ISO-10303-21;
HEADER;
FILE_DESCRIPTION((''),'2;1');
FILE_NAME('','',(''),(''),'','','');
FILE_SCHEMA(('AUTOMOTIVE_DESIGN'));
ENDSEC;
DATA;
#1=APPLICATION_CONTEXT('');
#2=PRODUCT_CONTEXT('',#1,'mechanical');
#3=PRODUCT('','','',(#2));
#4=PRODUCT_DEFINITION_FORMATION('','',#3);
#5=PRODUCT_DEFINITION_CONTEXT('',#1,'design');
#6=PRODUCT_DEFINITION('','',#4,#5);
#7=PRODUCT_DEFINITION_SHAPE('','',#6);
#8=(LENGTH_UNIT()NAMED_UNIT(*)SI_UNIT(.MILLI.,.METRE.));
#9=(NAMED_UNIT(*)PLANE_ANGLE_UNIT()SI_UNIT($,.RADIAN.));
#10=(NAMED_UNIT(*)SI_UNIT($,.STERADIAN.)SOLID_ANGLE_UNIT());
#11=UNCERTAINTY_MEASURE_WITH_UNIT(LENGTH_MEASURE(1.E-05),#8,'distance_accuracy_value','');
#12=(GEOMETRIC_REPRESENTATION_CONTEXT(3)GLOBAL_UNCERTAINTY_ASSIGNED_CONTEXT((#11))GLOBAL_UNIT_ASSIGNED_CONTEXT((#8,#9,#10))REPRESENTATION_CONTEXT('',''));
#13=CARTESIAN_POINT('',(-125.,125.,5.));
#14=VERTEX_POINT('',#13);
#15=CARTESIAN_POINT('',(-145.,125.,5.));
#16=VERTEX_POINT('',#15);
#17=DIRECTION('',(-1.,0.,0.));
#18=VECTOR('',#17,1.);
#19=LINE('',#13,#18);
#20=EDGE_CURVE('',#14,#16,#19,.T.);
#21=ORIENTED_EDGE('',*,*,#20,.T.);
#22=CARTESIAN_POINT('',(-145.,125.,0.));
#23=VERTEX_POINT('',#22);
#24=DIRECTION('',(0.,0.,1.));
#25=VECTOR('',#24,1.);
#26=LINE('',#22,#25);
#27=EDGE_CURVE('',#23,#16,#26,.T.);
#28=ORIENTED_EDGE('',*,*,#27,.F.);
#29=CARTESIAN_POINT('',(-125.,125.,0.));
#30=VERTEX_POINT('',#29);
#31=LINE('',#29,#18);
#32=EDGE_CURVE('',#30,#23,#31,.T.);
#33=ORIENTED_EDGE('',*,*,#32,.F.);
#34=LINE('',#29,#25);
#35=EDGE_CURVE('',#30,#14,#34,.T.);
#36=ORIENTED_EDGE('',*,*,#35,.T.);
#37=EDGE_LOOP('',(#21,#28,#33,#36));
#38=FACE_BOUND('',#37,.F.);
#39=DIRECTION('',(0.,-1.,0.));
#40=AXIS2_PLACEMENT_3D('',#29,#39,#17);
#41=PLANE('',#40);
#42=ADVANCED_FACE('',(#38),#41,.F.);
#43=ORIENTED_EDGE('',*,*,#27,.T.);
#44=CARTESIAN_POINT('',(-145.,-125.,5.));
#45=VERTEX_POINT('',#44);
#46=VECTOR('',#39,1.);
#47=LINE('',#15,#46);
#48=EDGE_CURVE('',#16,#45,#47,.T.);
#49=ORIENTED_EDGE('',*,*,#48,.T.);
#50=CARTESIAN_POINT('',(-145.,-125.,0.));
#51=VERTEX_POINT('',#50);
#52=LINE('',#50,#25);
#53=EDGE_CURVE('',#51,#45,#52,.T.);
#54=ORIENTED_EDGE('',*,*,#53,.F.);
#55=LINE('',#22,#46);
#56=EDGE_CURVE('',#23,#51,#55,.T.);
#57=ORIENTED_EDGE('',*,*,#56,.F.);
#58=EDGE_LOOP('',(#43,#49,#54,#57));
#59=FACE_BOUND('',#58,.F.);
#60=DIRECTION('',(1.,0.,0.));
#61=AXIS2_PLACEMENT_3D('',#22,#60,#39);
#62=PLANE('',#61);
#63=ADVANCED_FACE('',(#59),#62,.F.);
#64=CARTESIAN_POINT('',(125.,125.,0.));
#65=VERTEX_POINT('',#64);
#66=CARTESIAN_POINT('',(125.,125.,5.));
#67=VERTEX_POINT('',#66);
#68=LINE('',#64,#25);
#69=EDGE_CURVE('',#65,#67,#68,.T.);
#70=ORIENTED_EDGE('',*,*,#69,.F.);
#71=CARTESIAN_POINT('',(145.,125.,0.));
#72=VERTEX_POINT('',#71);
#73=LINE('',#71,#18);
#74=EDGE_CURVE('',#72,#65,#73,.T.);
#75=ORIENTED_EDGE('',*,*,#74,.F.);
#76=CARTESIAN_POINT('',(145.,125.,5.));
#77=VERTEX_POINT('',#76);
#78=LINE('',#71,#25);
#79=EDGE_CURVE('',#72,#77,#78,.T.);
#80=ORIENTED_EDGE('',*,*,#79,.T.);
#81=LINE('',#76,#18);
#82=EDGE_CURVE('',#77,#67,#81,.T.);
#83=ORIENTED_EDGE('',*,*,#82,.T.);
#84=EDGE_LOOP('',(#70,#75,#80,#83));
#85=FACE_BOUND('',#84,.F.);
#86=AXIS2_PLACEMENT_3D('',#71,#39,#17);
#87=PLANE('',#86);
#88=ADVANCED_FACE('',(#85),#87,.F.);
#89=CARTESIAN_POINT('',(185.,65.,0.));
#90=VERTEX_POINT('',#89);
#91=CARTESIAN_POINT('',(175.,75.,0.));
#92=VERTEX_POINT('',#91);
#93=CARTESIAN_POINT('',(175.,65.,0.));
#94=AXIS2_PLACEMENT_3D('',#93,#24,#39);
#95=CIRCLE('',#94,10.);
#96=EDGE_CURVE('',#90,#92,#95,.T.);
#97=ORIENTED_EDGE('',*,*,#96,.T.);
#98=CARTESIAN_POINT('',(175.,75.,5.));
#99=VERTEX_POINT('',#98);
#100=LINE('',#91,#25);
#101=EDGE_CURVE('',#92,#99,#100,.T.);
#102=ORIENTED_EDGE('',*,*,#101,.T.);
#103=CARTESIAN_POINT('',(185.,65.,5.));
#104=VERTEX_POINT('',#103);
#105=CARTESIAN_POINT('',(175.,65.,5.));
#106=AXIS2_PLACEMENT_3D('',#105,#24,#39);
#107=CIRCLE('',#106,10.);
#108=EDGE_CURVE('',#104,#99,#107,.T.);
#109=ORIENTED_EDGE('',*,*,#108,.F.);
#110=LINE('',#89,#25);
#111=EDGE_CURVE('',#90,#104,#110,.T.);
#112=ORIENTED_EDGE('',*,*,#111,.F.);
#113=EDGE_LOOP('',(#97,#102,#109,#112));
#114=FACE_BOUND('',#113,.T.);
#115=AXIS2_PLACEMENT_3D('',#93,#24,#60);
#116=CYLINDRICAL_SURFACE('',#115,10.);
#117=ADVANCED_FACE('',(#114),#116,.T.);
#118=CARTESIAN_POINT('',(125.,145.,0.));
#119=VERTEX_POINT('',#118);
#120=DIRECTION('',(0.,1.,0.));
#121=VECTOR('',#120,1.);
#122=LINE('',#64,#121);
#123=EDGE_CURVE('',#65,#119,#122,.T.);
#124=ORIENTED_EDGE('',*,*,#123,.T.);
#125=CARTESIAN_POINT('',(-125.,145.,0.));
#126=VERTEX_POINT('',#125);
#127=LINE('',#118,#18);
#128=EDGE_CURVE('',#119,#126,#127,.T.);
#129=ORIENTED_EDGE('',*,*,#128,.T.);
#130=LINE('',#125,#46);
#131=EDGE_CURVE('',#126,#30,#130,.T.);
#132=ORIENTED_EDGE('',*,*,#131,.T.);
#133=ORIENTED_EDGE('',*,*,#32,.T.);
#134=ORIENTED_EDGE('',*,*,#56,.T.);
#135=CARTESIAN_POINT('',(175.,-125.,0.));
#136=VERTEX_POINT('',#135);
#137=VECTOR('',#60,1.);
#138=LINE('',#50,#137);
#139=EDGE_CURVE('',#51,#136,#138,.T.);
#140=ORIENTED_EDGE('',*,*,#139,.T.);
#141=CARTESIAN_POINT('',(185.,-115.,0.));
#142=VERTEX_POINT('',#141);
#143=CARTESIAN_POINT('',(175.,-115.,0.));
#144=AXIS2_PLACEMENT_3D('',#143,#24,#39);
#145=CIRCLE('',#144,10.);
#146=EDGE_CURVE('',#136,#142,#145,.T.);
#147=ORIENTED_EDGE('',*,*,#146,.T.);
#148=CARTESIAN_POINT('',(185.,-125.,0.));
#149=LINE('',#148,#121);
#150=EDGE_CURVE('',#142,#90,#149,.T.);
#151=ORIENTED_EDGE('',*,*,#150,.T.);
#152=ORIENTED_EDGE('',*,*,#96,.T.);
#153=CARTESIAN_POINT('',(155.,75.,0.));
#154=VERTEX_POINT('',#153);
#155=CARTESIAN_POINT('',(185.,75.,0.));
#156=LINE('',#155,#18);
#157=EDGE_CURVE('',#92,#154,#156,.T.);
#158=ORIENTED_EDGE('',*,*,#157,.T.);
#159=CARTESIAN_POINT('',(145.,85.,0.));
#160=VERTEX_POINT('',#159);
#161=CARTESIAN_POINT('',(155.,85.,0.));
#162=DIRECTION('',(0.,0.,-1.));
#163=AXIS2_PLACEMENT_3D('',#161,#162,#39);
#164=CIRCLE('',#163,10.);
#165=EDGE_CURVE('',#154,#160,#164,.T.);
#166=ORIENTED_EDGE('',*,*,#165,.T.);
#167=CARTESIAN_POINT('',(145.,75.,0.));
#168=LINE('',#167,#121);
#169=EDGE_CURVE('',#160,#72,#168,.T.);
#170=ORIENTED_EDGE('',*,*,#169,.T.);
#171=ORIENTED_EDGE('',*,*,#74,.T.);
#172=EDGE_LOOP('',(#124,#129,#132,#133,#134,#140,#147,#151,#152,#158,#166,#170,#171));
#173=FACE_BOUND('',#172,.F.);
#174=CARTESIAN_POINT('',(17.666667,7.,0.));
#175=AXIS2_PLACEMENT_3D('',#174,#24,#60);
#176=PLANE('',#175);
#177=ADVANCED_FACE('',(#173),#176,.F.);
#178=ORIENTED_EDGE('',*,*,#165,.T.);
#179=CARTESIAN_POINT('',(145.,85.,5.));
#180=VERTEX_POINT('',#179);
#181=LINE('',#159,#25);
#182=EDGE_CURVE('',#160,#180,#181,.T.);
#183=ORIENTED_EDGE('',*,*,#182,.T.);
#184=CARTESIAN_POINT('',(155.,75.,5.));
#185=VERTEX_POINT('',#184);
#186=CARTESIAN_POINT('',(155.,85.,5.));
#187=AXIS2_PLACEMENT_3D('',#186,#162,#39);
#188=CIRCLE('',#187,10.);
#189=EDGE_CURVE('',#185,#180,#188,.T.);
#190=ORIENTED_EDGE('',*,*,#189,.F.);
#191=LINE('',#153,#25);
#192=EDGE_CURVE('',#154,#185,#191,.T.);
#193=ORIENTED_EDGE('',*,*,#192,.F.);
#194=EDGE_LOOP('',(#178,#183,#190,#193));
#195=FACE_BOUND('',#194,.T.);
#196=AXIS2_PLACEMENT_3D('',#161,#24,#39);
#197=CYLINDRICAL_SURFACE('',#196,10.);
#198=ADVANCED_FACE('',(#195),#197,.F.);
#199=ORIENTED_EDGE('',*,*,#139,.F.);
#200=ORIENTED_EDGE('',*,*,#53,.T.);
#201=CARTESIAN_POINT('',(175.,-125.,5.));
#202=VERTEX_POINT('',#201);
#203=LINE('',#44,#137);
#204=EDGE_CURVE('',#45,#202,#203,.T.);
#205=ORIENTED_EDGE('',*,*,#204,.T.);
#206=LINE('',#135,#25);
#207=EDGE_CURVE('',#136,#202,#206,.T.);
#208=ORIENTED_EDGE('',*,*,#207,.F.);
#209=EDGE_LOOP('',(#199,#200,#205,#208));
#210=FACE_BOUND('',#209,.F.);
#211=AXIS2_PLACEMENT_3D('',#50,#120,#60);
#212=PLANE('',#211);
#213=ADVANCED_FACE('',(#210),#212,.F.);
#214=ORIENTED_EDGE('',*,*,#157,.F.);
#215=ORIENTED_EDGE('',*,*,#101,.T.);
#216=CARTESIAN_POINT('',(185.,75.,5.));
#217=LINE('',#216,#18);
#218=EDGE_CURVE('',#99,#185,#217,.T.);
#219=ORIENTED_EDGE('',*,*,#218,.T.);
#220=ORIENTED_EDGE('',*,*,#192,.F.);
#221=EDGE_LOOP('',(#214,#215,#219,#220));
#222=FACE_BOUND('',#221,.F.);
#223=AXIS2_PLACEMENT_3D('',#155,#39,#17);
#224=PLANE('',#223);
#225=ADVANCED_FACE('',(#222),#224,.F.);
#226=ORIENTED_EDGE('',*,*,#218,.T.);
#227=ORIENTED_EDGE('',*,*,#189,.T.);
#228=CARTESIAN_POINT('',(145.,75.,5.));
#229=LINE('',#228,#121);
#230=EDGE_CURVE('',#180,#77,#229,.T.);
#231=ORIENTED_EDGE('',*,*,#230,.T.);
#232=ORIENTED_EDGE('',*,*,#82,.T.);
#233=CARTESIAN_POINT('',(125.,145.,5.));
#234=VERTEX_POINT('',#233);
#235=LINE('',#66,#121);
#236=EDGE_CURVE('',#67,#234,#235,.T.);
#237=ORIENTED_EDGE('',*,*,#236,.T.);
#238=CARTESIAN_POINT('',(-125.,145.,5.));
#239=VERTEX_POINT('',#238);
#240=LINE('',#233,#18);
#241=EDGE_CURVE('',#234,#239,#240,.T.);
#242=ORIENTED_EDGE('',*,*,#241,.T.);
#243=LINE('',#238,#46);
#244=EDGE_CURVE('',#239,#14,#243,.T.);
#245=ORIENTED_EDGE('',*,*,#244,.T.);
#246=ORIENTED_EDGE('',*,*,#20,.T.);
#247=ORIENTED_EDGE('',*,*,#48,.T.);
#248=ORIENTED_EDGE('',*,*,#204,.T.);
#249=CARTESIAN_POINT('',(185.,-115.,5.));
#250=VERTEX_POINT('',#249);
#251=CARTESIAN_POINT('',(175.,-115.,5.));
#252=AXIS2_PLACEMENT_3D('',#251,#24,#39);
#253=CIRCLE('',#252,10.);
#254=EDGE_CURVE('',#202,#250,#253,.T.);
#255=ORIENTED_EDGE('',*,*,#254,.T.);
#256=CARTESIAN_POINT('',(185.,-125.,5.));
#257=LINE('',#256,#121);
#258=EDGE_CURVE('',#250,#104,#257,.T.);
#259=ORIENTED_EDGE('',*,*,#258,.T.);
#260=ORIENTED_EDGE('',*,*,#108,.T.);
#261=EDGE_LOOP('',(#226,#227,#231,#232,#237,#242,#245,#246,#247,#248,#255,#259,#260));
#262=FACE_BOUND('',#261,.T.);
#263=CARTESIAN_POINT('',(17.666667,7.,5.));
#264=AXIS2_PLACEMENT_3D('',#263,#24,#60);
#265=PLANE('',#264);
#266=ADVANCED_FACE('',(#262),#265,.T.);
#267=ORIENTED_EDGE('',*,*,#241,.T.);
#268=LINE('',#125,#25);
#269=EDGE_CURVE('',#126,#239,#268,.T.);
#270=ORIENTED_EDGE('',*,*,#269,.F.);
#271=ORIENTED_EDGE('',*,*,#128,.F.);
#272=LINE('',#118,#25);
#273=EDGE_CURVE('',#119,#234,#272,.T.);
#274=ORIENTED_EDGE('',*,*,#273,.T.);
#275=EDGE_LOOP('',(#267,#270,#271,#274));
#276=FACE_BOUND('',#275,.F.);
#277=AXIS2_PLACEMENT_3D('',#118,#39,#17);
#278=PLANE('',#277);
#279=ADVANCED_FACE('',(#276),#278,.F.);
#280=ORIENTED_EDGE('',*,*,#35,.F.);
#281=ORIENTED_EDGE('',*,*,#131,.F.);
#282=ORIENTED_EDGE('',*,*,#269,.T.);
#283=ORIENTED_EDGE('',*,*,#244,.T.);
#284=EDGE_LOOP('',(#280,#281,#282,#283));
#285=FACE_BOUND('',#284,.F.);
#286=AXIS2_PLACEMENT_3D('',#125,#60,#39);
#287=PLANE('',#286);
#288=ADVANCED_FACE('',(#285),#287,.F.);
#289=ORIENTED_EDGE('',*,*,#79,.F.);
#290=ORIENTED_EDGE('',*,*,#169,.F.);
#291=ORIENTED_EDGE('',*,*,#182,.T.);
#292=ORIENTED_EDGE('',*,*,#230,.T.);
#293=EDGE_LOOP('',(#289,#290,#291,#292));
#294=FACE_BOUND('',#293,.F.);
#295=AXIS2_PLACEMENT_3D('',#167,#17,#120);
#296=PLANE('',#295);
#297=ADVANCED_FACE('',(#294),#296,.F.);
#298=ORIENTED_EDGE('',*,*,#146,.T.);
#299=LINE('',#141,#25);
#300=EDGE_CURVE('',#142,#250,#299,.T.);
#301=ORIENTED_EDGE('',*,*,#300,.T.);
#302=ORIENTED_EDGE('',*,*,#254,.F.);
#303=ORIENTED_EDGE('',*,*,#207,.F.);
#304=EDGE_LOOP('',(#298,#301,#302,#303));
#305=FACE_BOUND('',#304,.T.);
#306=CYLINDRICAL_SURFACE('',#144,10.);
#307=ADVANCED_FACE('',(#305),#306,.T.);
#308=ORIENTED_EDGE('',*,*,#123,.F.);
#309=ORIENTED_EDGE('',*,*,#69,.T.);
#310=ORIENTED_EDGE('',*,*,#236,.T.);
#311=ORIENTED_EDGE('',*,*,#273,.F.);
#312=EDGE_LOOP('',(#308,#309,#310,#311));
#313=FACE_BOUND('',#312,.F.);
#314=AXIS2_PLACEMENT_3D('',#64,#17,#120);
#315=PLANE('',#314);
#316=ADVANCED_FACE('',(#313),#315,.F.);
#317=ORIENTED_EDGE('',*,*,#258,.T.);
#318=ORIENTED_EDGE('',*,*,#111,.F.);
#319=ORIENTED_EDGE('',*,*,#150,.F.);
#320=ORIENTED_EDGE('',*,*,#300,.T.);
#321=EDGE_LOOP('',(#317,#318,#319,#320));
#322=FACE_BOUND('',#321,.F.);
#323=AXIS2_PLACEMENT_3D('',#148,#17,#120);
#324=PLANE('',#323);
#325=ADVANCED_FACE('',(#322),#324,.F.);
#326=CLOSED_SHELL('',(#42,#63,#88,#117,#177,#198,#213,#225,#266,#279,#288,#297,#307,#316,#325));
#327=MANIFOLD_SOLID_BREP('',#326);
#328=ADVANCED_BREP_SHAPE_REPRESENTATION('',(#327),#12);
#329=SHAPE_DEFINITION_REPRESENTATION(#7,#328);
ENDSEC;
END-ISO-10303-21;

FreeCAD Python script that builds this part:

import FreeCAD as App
import Part
import Sketcher
from FreeCAD import Vector
Q = App.Units.Quantity


def edges_at(feature, points):
    """Names of the edges that pass closest to the given points."""
    edges = feature.Shape.Edges
    near = lambda p: min(range(len(edges)), key=lambda i: edges[i].distToShape(Part.Vertex(*p))[0])
    return sorted({f"Edge{near(p) + 1}" for p in points})

doc = App.newDocument("Part")
body = doc.addObject("PartDesign::Body", "Body")

# Sketch on XY plane
sketch1 = body.newObject("Sketcher::SketchObject", "Sketch")
sketch1.AttachmentSupport = (doc.getObject("XY_Plane"), [""])
sketch1.MapMode = "FlatFace"
sketch1.addGeometry([
    Part.LineSegment(Vector(-145, -125, 0), Vector(185, -125, 0)),  # 0
    Part.LineSegment(Vector(185, -125, 0), Vector(185, 75, 0)),  # 1
    Part.LineSegment(Vector(185, 75, 0), Vector(145, 75, 0)),  # 2
    Part.LineSegment(Vector(145, 75, 0), Vector(145, 125, 0)),  # 3
    Part.LineSegment(Vector(145, 125, 0), Vector(125, 125, 0)),  # 4
    Part.LineSegment(Vector(125, 125, 0), Vector(125, 145, 0)),  # 5
    Part.LineSegment(Vector(125, 145, 0), Vector(-125, 145, 0)),  # 6
    Part.LineSegment(Vector(-125, 145, 0), Vector(-125, 125, 0)),  # 7
    Part.LineSegment(Vector(-125, 125, 0), Vector(-145, 125, 0)),  # 8
    Part.LineSegment(Vector(-145, 125, 0), Vector(-145, -125, 0)),  # 9
], False)
sketch1.addConstraint([
    Sketcher.Constraint("Coincident", 0, 2, 1, 1),
    Sketcher.Constraint("Coincident", 1, 2, 2, 1),
    Sketcher.Constraint("Coincident", 2, 2, 3, 1),
    Sketcher.Constraint("Coincident", 3, 2, 4, 1),
    Sketcher.Constraint("Coincident", 4, 2, 5, 1),
    Sketcher.Constraint("Coincident", 5, 2, 6, 1),
    Sketcher.Constraint("Coincident", 6, 2, 7, 1),
    Sketcher.Constraint("Coincident", 7, 2, 8, 1),
    Sketcher.Constraint("Coincident", 8, 2, 9, 1),
    Sketcher.Constraint("Coincident", 9, 2, 0, 1),
    Sketcher.Constraint("Horizontal", 0),
    Sketcher.Constraint("Vertical", 1),
    Sketcher.Constraint("Horizontal", 2),
    Sketcher.Constraint("Vertical", 3),
    Sketcher.Constraint("Horizontal", 4),
    Sketcher.Constraint("Vertical", 5),
    Sketcher.Constraint("Horizontal", 6),
    Sketcher.Constraint("Vertical", 7),
    Sketcher.Constraint("Horizontal", 8),
    Sketcher.Constraint("Vertical", 9),
    Sketcher.Constraint("Symmetric", 3, 2, 9, 2, -1, 1),
    Sketcher.Constraint("Symmetric", 4, 2, 7, 2, -2),
    Sketcher.Constraint("Equal", 8, 5),
    Sketcher.Constraint("Equal", 6, 9),
    Sketcher.Constraint("DistanceX", 0, 1, 0, 2, Q("330 mm")),
    Sketcher.Constraint("DistanceX", 2, 2, 2, 1, Q("40 mm")),
    Sketcher.Constraint("DistanceX", 4, 2, 4, 1, Q("20 mm")),
    Sketcher.Constraint("DistanceY", 1, 1, 1, 2, Q("200 mm")),
])
pad1 = body.newObject("PartDesign::Pad", "Pad")
pad1.Profile = sketch1
pad1.Length = 5
doc.recompute()

fillet = body.newObject("PartDesign::Fillet", "Fillet")
fillet.Base = (pad1, edges_at(pad1, [(185, -125, 2.5), (185, 75, 2.5), (145, 75, 2.5)]))
fillet.Radius = 10

doc.recompute()
